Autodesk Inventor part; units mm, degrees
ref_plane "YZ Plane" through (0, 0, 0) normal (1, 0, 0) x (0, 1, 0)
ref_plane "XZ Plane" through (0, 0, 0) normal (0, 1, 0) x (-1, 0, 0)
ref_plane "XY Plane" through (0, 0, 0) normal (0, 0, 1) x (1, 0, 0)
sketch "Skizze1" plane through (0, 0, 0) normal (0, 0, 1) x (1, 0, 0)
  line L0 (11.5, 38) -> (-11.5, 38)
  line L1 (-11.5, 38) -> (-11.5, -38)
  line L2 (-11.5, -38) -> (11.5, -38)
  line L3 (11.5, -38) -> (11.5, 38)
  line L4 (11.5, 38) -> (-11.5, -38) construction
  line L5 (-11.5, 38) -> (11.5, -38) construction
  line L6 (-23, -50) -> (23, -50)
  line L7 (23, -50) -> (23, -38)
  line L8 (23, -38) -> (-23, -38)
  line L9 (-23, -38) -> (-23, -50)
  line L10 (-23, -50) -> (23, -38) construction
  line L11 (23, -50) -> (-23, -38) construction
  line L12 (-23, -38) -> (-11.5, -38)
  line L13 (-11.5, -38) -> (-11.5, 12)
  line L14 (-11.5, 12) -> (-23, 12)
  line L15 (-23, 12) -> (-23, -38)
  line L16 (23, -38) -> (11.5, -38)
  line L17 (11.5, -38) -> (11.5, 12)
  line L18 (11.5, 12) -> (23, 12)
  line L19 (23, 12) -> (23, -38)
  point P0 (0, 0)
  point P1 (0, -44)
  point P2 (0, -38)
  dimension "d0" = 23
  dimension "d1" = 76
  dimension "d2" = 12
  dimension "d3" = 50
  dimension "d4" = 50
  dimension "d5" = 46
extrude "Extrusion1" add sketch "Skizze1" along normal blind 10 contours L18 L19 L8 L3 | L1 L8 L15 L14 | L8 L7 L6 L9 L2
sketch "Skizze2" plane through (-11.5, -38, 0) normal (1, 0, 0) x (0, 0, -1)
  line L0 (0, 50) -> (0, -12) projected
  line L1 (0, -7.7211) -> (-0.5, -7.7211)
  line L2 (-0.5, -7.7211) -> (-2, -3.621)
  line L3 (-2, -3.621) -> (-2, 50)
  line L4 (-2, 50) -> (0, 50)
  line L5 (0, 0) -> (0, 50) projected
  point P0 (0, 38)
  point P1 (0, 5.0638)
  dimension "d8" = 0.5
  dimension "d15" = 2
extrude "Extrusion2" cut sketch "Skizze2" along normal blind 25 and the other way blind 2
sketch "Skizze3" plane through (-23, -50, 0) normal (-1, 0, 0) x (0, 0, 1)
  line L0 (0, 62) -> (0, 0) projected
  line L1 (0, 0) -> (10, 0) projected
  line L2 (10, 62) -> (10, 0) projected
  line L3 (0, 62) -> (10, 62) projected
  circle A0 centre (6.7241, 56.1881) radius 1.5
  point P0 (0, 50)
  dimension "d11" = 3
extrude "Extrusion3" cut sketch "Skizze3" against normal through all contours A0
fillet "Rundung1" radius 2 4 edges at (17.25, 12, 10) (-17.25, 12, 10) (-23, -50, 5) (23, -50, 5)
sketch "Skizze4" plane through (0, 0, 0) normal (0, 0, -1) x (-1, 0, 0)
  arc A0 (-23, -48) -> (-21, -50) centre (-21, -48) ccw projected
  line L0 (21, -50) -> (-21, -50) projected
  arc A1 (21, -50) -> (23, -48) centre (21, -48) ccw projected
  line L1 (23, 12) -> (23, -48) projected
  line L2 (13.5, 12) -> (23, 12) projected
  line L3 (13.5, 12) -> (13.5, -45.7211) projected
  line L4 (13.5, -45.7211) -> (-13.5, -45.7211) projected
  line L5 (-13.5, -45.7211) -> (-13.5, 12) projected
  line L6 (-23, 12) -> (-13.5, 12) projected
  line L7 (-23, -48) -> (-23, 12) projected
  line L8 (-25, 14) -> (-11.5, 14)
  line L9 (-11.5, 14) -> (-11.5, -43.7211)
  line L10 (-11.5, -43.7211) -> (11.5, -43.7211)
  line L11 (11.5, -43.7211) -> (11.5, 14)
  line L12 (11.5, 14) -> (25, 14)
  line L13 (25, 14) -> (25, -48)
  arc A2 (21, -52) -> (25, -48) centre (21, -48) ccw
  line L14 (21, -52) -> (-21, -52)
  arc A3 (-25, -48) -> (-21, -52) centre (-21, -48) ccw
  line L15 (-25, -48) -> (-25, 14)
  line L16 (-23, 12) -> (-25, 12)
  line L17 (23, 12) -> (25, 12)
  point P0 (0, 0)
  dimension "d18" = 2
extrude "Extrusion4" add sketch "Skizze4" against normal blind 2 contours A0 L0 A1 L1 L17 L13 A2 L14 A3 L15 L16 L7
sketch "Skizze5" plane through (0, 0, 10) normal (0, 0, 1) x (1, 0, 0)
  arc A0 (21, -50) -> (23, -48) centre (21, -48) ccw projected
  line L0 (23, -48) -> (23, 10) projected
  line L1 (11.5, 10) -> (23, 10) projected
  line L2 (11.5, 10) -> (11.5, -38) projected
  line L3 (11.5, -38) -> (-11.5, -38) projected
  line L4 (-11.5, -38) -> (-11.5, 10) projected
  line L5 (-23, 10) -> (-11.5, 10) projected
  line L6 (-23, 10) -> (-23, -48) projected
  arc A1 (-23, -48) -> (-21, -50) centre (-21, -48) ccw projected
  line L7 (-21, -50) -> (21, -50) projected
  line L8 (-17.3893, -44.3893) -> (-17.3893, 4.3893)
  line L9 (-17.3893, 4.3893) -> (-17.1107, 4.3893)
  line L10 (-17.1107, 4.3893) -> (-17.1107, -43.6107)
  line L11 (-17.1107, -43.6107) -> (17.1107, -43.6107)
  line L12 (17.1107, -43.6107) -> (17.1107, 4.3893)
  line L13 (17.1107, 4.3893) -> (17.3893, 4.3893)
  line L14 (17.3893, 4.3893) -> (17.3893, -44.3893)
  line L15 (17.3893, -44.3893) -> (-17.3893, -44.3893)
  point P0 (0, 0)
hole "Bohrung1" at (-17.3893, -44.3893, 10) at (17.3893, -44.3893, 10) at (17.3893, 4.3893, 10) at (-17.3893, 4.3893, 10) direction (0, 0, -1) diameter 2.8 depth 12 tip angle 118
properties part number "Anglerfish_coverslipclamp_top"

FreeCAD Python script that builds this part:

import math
import FreeCAD as App
import Part
import Sketcher
from FreeCAD import Vector


def edges_at(feature, points):
    """Names of the edges that pass closest to the given points."""
    edges = feature.Shape.Edges
    near = lambda p: min(range(len(edges)), key=lambda i: edges[i].distToShape(Part.Vertex(*p))[0])
    return sorted({f"Edge{near(p) + 1}" for p in points})


def add_polygon(sketch, points):
    """Adds a closed chain of lines whose ends are joined by coincident constraints."""
    first, n = sketch.GeometryCount, len(points)
    for a, b in zip(points, points[1:] + points[:1]):
        sketch.addGeometry(Part.LineSegment(App.Vector(*a, 0), App.Vector(*b, 0)), False)
    for i in range(n):
        sketch.addConstraint(Sketcher.Constraint("Coincident", first + i, 2, first + (i + 1) % n, 1))

doc = App.newDocument("Part")
params = doc.addObject("Spreadsheet::Sheet", "Params")
for row, (alias, value) in enumerate([
    ("sketch1_width", "23 mm"),
    ("sketch1_width2", "46 mm"),
    ("sketch1_height", "50 mm"),
    ("pad1_length", "10 mm"),
    ("sketch2_height", "2 mm"),
    ("sketch2_height2", "0.5 mm"),
    ("pocket1_length", "25 mm"),
    ("pocket1_length2", "2 mm"),
    ("sketch3_diameter", "3 mm"),
    ("fillet_radius", "2 mm"),
    ("sketch4_radius", "2 mm"),
    ("sketch4_width", "2 mm"),
    ("sketch4_width2", "42 mm"),
    ("sketch4_height", "60 mm"),
    ("pad2_length", "2 mm"),
    ("sketch5_diameter", "2.8 mm"),
    ("hole_diameter", "2.8 mm"),
    ("hole_depth", "12 mm"),
], start=1):
    params.set(f"A{row}", alias)
    params.set(f"B{row}", "=" + value)
    params.setAlias(f"B{row}", alias)

body = doc.addObject("PartDesign::Body", "Body")

# Sketch on XY plane
sketch1 = body.newObject("Sketcher::SketchObject", "Sketch")
sketch1.AttachmentSupport = (doc.getObject("XY_Plane"), [""])
sketch1.MapMode = "FlatFace"
add_polygon(sketch1, [(23, 12), (11.5, 12), (11.5, -38), (-11.5, -38), (-11.5, 12), (-23, 12), (-23, -50), (23, -50)])  # lines 0-7
sketch1.addConstraint([
    Sketcher.Constraint("Horizontal", 0),
    Sketcher.Constraint("Vertical", 1),
    Sketcher.Constraint("Horizontal", 2),
    Sketcher.Constraint("Vertical", 3),
    Sketcher.Constraint("Horizontal", 4),
    Sketcher.Constraint("Vertical", 5),
    Sketcher.Constraint("Horizontal", 6),
    Sketcher.Constraint("Vertical", 7),
    Sketcher.Constraint("Symmetric", 0, 2, 3, 2, -2),
    Sketcher.Constraint("Equal", 0, 4),
    Sketcher.Constraint("DistanceX", 2, 2, 2, 1, 23.0),
    Sketcher.Constraint("DistanceX", 6, 1, 6, 2, 46.0),
    Sketcher.Constraint("DistanceY", 1, 2, 1, 1, 50.0),
    Sketcher.Constraint("DistanceY", -1, 1, 0, 2, 12.0),
    Sketcher.Constraint("DistanceY", 5, 2, -1, 1, 50.0),
])
sketch1.setExpression("Constraints[18]", "Params.sketch1_width")
sketch1.setExpression("Constraints[19]", "Params.sketch1_width2")
sketch1.setExpression("Constraints[20]", "Params.sketch1_height")
pad1 = body.newObject("PartDesign::Pad", "Pad")
pad1.Profile = sketch1
pad1.setExpression("Length", "Params.pad1_length")

# Sketch on YZ plane
sketch2 = body.newObject("Sketcher::SketchObject", "Sketch001")
sketch2.AttachmentSupport = (doc.getObject("YZ_Plane"), [""])
sketch2.MapMode = "FlatFace"
sketch2.AttachmentOffset = App.Placement(Vector(0, 0, -11.5), App.Rotation())
add_polygon(sketch2, [(-45.7211, 0), (12, 0), (12, 2), (-41.621, 2), (-45.7211, 0.5)])  # lines 0-4
sketch2.addConstraint([
    Sketcher.Constraint("Horizontal", 0),
    Sketcher.Constraint("Vertical", 1),
    Sketcher.Constraint("Horizontal", 2),
    Sketcher.Constraint("Vertical", 4),
    Sketcher.Constraint("PointOnObject", 0, 2, -1),
    Sketcher.Constraint("DistanceY", 1, 1, 1, 2, 2.0),
    Sketcher.Constraint("DistanceY", 4, 2, 4, 1, 0.5),
    Sketcher.Constraint("DistanceX", -1, 1, 0, 2, 12.0),
    Sketcher.Constraint("DistanceX", 3, 2, 2, 2, 4.1),
    Sketcher.Constraint("DistanceX", 0, 1, 0, 2, 57.721),
])
sketch2.setExpression("Constraints[10]", "Params.sketch2_height")
sketch2.setExpression("Constraints[11]", "Params.sketch2_height2")
pocket1 = body.newObject("PartDesign::Pocket", "Pocket")
pocket1.Profile = sketch2
pocket1.Type = "TwoLengths"
pocket1.setExpression("Length", "Params.pocket1_length")
pocket1.setExpression("Length2", "Params.pocket1_length2")
pocket1.Reversed = True

# Sketch on YZ plane
sketch3 = body.newObject("Sketcher::SketchObject", "Sketch002")
sketch3.AttachmentSupport = (doc.getObject("YZ_Plane"), [""])
sketch3.MapMode = "FlatFace"
sketch3.AttachmentOffset = App.Placement(Vector(0, 0, -23), App.Rotation())
sketch3.addGeometry(Part.Circle(Vector(6.1881, 6.7241, 0), Vector(0, 0, 1), 1.5), False)
sketch3.addConstraint([
    Sketcher.Constraint("Diameter", 0, 3.0),
    Sketcher.Constraint("DistanceX", -1, 1, 0, 3, 6.188),
    Sketcher.Constraint("DistanceY", -1, 1, 0, 3, 6.724),
])
sketch3.setExpression("Constraints[0]", "Params.sketch3_diameter")
pocket2 = body.newObject("PartDesign::Pocket", "Pocket001")
pocket2.Profile = sketch3
pocket2.Type = "ThroughAll"
pocket2.Reversed = True
doc.recompute()

fillet = body.newObject("PartDesign::Fillet", "Fillet")
fillet.Base = (pocket2, edges_at(pocket2, [
    (17.25, 12, 10),
    (-17.25, 12, 10),
    (-23, -50, 5),
    (23, -50, 5),
]))
fillet.setExpression("Radius", "Params.fillet_radius")

# Sketch on XY plane
sketch4 = body.newObject("Sketcher::SketchObject", "Sketch003")
sketch4.AttachmentSupport = (doc.getObject("XY_Plane"), [""])
sketch4.MapMode = "FlatFace"
sketch4.addGeometry([
    Part.ArcOfCircle(Part.Circle(Vector(21, -48, 0), Vector(0, 0, 1), 2), math.radians(-90), math.radians(0)),  # 0
    Part.LineSegment(Vector(23, -48, 0), Vector(23, 12, 0)),  # 1
    Part.LineSegment(Vector(23, 12, 0), Vector(25, 12, 0)),  # 2
    Part.LineSegment(Vector(25, 12, 0), Vector(25, -48, 0)),  # 3
    Part.ArcOfCircle(Part.Circle(Vector(21, -48, 0), Vector(0, 0, 1), 4), math.radians(-90), math.radians(0)),  # 4
    Part.LineSegment(Vector(21, -52, 0), Vector(-21, -52, 0)),  # 5
    Part.ArcOfCircle(Part.Circle(Vector(-21, -48, 0), Vector(0, 0, 1), 4), math.radians(180), math.radians(270)),  # 6
    Part.LineSegment(Vector(-25, -48, 0), Vector(-25, 12, 0)),  # 7
    Part.LineSegment(Vector(-25, 12, 0), Vector(-23, 12, 0)),  # 8
    Part.LineSegment(Vector(-23, 12, 0), Vector(-23, -48, 0)),  # 9
    Part.ArcOfCircle(Part.Circle(Vector(-21, -48, 0), Vector(0, 0, 1), 2), math.radians(180), math.radians(270)),  # 10
    Part.LineSegment(Vector(-21, -50, 0), Vector(21, -50, 0)),  # 11
], False)
sketch4.addConstraint([
    Sketcher.Constraint("Tangent", 0, 2, 1, 1),
    Sketcher.Constraint("Coincident", 1, 2, 2, 1),
    Sketcher.Constraint("Coincident", 2, 2, 3, 1),
    Sketcher.Constraint("Tangent", 3, 2, 4, 2),
    Sketcher.Constraint("Tangent", 4, 1, 5, 1),
    Sketcher.Constraint("Tangent", 5, 2, 6, 2),
    Sketcher.Constraint("Tangent", 6, 1, 7, 1),
    Sketcher.Constraint("Coincident", 7, 2, 8, 1),
    Sketcher.Constraint("Coincident", 8, 2, 9, 1),
    Sketcher.Constraint("Tangent", 9, 2, 10, 1),
    Sketcher.Constraint("Tangent", 10, 2, 11, 1),
    Sketcher.Constraint("Tangent", 11, 2, 0, 1),
    Sketcher.Constraint("Vertical", 1),
    Sketcher.Constraint("Horizontal", 2),
    Sketcher.Constraint("Vertical", 3),
    Sketcher.Constraint("Horizontal", 5),
    Sketcher.Constraint("Vertical", 7),
    Sketcher.Constraint("Horizontal", 8),
    Sketcher.Constraint("Vertical", 9),
    Sketcher.Constraint("Horizontal", 11),
    Sketcher.Constraint("Coincident", 4, 3, 0, 3),
    Sketcher.Constraint("Coincident", 10, 3, 6, 3),
    Sketcher.Constraint("Equal", 4, 6),
    Sketcher.Constraint("Symmetric", 2, 2, 7, 2, -2),
    Sketcher.Constraint("Radius", 0, 2.0),
    Sketcher.Constraint("DistanceX", 2, 1, 2, 2, 2.0),
    Sketcher.Constraint("DistanceX", 5, 2, 5, 1, 42.0),
    Sketcher.Constraint("DistanceY", 1, 1, 1, 2, 60.0),
    Sketcher.Constraint("DistanceY", 0, 3, -1, 1, 48.0),
])
sketch4.setExpression("Constraints[24]", "Params.sketch4_radius")
sketch4.setExpression("Constraints[25]", "Params.sketch4_width")
sketch4.setExpression("Constraints[26]", "Params.sketch4_width2")
sketch4.setExpression("Constraints[27]", "Params.sketch4_height")
pad2 = body.newObject("PartDesign::Pad", "Pad001")
pad2.Profile = sketch4
pad2.setExpression("Length", "Params.pad2_length")

# Sketch on XY plane
sketch5 = body.newObject("Sketcher::SketchObject", "Sketch004")
sketch5.AttachmentSupport = (doc.getObject("XY_Plane"), [""])
sketch5.MapMode = "FlatFace"
sketch5.AttachmentOffset = App.Placement(Vector(0, 0, 10), App.Rotation())
sketch5.addGeometry([
    Part.Circle(Vector(-17.3893, -44.3893, 0), Vector(0, 0, 1), 1.4),
    Part.Circle(Vector(17.3893, -44.3893, 0), Vector(0, 0, 1), 1.4),
    Part.Circle(Vector(17.3893, 4.3893, 0), Vector(0, 0, 1), 1.4),
    Part.Circle(Vector(-17.3893, 4.3893, 0), Vector(0, 0, 1), 1.4),
], False)
sketch5.addConstraint([
    Sketcher.Constraint("Equal", 0, 1),
    Sketcher.Constraint("Equal", 1, 2),
    Sketcher.Constraint("Equal", 2, 3),
    Sketcher.Constraint("Symmetric", 0, 3, 1, 3, -2),
    Sketcher.Constraint("Symmetric", 2, 3, 3, 3, -2),
    Sketcher.Constraint("Vertical", 1, 3, 2, 3),
    Sketcher.Constraint("Diameter", 0, 2.8),
    Sketcher.Constraint("DistanceX", 0, 3, -1, 1, 17.3893),
    Sketcher.Constraint("DistanceY", 0, 3, -1, 1, 44.3893),
    Sketcher.Constraint("DistanceY", -1, 1, 2, 3, 4.3893),
])
sketch5.setExpression("Constraints[6]", "Params.sketch5_diameter")
doc.recompute()
hole = body.newObject("PartDesign::Hole", "Hole")
hole.Profile = sketch5
hole.ThreadType = "None"
hole.setExpression("Diameter", "Params.hole_diameter")
hole.DepthType = "Dimension"
hole.setExpression("Depth", "Params.hole_depth")
hole.DrillPoint = "Angled"
hole.DrillPointAngle = 118

doc.recompute()
